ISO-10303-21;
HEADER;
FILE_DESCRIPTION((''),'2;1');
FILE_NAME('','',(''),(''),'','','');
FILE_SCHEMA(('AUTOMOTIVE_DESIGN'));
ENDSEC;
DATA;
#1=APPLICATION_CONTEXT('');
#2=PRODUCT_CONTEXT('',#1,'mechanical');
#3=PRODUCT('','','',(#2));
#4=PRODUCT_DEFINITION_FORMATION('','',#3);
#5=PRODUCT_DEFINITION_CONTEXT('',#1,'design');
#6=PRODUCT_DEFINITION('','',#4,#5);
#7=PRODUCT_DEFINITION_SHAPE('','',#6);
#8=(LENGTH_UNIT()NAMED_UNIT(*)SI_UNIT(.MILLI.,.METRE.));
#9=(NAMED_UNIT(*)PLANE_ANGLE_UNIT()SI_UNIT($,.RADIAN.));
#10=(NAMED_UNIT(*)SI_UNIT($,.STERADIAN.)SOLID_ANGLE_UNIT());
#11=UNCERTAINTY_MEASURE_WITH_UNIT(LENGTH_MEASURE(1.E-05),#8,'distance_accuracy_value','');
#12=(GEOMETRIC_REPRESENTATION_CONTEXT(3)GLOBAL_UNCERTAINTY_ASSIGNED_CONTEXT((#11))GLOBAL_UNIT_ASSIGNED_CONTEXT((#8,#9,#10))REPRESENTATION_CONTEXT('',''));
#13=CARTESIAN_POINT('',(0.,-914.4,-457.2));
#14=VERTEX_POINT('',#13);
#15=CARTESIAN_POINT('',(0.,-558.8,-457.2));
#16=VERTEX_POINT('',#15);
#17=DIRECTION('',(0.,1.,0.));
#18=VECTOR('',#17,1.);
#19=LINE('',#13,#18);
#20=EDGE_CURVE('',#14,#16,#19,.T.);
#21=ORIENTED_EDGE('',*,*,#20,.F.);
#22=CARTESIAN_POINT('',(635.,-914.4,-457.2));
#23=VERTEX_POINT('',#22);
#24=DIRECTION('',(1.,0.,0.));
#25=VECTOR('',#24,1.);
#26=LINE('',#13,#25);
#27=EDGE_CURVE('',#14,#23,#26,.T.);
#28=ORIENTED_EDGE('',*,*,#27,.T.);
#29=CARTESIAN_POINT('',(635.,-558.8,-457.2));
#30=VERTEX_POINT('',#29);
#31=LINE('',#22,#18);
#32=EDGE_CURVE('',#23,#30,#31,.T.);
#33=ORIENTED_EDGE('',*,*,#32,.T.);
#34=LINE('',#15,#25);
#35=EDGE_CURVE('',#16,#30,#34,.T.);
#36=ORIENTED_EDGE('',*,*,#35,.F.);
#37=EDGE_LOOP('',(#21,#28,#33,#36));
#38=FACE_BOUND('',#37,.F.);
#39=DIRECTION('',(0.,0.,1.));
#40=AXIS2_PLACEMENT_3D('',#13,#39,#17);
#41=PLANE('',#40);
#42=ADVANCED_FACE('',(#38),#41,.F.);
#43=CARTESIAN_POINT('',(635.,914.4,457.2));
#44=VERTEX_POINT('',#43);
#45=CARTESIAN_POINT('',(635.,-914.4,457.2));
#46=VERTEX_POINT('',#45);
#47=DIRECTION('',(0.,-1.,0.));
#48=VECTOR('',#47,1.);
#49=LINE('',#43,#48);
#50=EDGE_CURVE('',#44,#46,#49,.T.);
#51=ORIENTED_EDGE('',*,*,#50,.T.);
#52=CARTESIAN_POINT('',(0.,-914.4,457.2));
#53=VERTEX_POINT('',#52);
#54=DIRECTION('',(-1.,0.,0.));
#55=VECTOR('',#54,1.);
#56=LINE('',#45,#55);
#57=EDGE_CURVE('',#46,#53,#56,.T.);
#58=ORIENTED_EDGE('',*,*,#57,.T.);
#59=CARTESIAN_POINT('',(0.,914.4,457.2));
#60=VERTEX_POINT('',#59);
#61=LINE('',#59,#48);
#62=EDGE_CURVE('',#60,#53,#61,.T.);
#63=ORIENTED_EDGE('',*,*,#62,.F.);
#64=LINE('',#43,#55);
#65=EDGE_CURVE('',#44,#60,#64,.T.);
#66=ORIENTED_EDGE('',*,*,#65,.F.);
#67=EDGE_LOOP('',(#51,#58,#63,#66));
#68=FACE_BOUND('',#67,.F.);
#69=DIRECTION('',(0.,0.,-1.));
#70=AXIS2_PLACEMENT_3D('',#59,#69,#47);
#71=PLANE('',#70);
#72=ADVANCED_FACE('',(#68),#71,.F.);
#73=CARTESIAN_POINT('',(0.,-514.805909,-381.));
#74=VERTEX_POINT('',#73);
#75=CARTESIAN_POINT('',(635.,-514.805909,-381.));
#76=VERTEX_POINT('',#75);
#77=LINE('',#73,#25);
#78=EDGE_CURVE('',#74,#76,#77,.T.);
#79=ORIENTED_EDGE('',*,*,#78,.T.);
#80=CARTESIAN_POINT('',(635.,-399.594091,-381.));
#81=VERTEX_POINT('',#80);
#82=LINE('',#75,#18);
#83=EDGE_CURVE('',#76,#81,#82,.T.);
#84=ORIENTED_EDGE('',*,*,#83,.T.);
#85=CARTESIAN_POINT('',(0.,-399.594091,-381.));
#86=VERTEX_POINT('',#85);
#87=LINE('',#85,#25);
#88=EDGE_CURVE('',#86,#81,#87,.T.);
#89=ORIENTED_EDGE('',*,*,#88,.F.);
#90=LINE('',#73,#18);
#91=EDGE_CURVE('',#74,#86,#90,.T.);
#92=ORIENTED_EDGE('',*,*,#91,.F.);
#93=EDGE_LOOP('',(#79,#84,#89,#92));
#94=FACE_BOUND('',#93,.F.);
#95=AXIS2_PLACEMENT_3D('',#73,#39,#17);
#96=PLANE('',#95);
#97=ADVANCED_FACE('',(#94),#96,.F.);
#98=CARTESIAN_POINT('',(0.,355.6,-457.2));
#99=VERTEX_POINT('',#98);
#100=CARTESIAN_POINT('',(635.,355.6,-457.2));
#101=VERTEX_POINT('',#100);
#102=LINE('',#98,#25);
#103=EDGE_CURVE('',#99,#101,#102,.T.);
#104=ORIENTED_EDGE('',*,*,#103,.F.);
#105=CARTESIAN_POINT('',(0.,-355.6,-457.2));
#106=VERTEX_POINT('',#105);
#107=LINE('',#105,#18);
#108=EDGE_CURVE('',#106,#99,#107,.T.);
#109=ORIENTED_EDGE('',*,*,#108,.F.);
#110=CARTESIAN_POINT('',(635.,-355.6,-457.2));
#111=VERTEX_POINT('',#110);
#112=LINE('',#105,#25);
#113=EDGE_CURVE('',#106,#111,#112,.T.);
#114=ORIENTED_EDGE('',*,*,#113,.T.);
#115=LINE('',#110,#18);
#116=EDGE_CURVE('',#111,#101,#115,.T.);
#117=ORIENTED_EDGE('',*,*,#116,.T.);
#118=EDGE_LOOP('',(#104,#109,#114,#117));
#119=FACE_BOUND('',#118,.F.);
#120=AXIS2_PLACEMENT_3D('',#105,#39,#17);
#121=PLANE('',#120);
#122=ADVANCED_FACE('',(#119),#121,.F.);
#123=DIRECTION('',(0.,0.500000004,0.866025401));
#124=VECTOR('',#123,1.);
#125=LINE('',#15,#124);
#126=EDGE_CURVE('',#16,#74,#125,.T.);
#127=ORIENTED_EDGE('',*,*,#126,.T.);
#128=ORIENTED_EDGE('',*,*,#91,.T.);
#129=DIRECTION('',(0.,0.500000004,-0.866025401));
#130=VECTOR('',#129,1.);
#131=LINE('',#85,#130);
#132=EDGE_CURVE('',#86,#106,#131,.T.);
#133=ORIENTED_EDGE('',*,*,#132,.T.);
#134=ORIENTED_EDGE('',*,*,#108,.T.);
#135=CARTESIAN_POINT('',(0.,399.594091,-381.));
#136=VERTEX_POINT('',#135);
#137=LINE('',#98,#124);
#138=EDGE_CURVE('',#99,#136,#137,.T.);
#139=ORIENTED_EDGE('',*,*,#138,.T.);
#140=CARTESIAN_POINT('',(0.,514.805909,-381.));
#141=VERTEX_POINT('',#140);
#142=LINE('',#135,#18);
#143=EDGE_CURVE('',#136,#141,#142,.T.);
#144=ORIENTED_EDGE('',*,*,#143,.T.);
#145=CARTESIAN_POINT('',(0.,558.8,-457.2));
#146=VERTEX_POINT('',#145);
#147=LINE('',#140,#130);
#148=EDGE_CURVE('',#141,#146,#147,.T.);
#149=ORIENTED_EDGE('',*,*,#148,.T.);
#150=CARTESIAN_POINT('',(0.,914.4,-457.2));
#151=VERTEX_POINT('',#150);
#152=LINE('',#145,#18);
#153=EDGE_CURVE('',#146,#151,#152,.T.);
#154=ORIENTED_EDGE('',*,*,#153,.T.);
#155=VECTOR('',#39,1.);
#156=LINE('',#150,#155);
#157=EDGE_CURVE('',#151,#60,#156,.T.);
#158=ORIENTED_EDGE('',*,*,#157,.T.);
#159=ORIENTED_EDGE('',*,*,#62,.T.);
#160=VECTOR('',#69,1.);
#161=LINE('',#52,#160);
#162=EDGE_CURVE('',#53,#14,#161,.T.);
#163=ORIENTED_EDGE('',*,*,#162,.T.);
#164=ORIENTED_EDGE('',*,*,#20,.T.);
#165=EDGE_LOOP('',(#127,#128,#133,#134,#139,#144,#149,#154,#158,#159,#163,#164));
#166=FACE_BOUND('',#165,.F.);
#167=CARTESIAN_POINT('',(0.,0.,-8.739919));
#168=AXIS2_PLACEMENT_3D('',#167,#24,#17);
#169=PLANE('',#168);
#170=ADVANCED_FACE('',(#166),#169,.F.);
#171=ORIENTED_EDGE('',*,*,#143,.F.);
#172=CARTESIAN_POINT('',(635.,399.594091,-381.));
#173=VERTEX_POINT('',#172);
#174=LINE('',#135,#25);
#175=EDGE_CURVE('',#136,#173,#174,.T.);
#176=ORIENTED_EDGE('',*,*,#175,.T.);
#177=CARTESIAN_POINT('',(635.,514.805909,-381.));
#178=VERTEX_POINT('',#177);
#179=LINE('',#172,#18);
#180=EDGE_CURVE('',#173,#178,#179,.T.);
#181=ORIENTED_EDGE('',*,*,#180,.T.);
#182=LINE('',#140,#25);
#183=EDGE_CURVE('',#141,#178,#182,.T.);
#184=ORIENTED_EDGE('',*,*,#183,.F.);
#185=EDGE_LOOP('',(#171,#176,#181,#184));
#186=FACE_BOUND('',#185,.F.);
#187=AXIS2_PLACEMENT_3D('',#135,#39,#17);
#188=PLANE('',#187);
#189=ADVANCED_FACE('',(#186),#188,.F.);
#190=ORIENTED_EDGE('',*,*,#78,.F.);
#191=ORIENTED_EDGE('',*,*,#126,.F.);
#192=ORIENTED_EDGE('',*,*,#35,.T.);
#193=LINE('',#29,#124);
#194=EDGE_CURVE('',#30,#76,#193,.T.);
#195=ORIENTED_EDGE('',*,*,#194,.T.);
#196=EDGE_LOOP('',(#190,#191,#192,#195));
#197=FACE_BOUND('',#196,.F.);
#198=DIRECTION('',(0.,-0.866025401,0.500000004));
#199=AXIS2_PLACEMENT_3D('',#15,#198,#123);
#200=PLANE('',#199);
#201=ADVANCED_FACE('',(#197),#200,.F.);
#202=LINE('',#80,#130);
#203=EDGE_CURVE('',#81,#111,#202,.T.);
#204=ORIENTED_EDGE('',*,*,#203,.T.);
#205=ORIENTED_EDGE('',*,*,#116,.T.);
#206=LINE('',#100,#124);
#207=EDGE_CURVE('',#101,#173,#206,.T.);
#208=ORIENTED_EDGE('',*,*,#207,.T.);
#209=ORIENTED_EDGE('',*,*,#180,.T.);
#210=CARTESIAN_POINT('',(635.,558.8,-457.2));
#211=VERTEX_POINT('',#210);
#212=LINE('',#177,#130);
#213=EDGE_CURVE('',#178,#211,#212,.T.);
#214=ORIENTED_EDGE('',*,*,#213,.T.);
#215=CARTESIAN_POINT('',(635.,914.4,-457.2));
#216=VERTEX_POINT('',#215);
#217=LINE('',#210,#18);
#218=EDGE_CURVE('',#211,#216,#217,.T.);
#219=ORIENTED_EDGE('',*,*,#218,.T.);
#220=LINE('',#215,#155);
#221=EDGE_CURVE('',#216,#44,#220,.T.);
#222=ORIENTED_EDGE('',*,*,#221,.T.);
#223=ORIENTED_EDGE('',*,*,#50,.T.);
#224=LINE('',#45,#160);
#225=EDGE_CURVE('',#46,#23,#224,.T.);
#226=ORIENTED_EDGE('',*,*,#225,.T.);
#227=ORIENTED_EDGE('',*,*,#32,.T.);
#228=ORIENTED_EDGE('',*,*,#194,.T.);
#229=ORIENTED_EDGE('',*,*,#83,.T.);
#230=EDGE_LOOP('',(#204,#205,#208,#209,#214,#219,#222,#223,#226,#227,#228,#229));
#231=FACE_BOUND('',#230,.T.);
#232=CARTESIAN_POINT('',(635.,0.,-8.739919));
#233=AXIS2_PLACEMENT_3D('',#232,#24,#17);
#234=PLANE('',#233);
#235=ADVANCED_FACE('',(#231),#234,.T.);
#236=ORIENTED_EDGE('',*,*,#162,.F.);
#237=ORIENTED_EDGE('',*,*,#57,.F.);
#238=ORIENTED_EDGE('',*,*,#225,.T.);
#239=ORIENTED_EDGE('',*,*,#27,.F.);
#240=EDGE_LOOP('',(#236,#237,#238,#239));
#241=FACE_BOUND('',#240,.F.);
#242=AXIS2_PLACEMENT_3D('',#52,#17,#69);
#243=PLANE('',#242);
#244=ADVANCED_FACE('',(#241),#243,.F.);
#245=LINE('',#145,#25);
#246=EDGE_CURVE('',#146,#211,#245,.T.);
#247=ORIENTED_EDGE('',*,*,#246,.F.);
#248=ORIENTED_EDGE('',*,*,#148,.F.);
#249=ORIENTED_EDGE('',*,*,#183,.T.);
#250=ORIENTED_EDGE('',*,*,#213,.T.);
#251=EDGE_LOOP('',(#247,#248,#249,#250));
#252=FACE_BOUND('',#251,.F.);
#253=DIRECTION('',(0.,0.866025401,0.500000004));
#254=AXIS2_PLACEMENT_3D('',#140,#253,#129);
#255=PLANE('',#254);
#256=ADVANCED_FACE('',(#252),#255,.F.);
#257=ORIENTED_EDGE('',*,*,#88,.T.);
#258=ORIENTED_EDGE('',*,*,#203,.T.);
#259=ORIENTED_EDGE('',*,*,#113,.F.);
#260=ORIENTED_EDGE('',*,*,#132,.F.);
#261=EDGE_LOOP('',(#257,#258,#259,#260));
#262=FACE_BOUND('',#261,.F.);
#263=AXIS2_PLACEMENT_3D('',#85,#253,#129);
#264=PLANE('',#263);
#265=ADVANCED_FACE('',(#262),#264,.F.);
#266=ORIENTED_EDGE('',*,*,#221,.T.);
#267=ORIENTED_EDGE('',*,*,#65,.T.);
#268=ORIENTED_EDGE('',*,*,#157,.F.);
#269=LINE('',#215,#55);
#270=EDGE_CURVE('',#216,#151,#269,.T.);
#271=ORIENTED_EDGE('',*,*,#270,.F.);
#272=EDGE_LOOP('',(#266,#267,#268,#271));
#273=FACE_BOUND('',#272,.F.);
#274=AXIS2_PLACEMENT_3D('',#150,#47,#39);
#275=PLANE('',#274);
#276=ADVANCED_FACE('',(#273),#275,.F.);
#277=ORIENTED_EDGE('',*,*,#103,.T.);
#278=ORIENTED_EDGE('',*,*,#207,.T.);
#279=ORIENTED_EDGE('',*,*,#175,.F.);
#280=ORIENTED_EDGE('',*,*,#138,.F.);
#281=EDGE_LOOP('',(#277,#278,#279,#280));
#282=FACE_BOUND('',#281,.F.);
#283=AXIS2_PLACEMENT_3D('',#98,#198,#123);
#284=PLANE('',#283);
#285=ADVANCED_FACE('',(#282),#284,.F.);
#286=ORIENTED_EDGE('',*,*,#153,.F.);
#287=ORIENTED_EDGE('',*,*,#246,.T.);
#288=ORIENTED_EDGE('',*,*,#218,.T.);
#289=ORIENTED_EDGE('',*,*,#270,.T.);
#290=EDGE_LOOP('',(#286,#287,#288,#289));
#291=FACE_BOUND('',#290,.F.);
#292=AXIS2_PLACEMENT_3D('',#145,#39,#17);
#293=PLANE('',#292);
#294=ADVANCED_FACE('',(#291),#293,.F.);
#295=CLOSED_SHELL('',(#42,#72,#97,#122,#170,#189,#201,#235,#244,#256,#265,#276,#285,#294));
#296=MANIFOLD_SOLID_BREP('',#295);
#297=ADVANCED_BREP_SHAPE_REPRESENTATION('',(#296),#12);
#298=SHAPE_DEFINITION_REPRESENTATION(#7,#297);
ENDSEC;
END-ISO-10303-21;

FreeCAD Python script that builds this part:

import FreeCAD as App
import Part
import Sketcher
Q = App.Units.Quantity


def faces_at(feature, points):
    """Names of the faces that lie closest to the given points."""
    faces = feature.Shape.Faces
    near = lambda p: min(range(len(faces)), key=lambda i: faces[i].distToShape(Part.Vertex(*p))[0])
    return sorted({f"Face{near(p) + 1}" for p in points})

doc = App.newDocument("Part")
body = doc.addObject("PartDesign::Body", "Body")

sketch1 = doc.addObject("Sketcher::SketchObject", "Sketch")
body.addObject(sketch1)
sketch1.AttachmentSupport = (doc.YZ_Plane, [""])
sketch1.MapMode = "FlatFace"
sketch1.addGeometry(Part.LineSegment(App.Vector(914, -457, 0), App.Vector(914, 457, 0)), False)
sketch1.addGeometry(Part.LineSegment(App.Vector(914, 457, 0), App.Vector(-914, 457, 0)), False)
sketch1.addGeometry(Part.LineSegment(App.Vector(-914, 457, 0), App.Vector(-914, -457, 0)), False)
sketch1.addGeometry(Part.LineSegment(App.Vector(-914, -457, 0), App.Vector(-559, -457, 0)), False)
sketch1.addGeometry(Part.LineSegment(App.Vector(-559, -457, 0), App.Vector(-515, -381, 0)), False)
sketch1.addGeometry(Part.LineSegment(App.Vector(-515, -381, 0), App.Vector(-400, -381, 0)), False)
sketch1.addGeometry(Part.LineSegment(App.Vector(-400, -381, 0), App.Vector(-356, -457, 0)), False)
sketch1.addGeometry(Part.LineSegment(App.Vector(-356, -457, 0), App.Vector(356, -457, 0)), False)
sketch1.addGeometry(Part.LineSegment(App.Vector(356, -457, 0), App.Vector(400, -381, 0)), False)
sketch1.addGeometry(Part.LineSegment(App.Vector(400, -381, 0), App.Vector(515, -381, 0)), False)
sketch1.addGeometry(Part.LineSegment(App.Vector(515, -381, 0), App.Vector(559, -457, 0)), False)
sketch1.addGeometry(Part.LineSegment(App.Vector(559, -457, 0), App.Vector(914, -457, 0)), False)
sketch1.addConstraint(Sketcher.Constraint("Coincident", 0, 2, 1, 1))
sketch1.addConstraint(Sketcher.Constraint("Coincident", 1, 2, 2, 1))
sketch1.addConstraint(Sketcher.Constraint("Coincident", 2, 2, 3, 1))
sketch1.addConstraint(Sketcher.Constraint("Coincident", 3, 2, 4, 1))
sketch1.addConstraint(Sketcher.Constraint("Coincident", 4, 2, 5, 1))
sketch1.addConstraint(Sketcher.Constraint("Coincident", 5, 2, 6, 1))
sketch1.addConstraint(Sketcher.Constraint("Coincident", 6, 2, 7, 1))
sketch1.addConstraint(Sketcher.Constraint("Coincident", 7, 2, 8, 1))
sketch1.addConstraint(Sketcher.Constraint("Coincident", 8, 2, 9, 1))
sketch1.addConstraint(Sketcher.Constraint("Coincident", 9, 2, 10, 1))
sketch1.addConstraint(Sketcher.Constraint("Coincident", 10, 2, 11, 1))
sketch1.addConstraint(Sketcher.Constraint("Coincident", 11, 2, 0, 1))
sketch1.addConstraint(Sketcher.Constraint("Vertical", 0))
sketch1.addConstraint(Sketcher.Constraint("Horizontal", 1))
sketch1.addConstraint(Sketcher.Constraint("Vertical", 2))
sketch1.addConstraint(Sketcher.Constraint("Horizontal", 3))
sketch1.addConstraint(Sketcher.Constraint("Horizontal", 5))
sketch1.addConstraint(Sketcher.Constraint("Horizontal", 7))
sketch1.addConstraint(Sketcher.Constraint("Horizontal", 9))
sketch1.addConstraint(Sketcher.Constraint("Horizontal", 11))
sketch1.addConstraint(Sketcher.Constraint("Symmetric", 0, 2, 2, 2, -1, 1))
sketch1.addConstraint(Sketcher.Constraint("Symmetric", 5, 2, 8, 2, -2))
sketch1.addConstraint(Sketcher.Constraint("Symmetric", 3, 2, 10, 2, -2))
sketch1.addConstraint(Sketcher.Constraint("Parallel", 4, 8))
sketch1.addConstraint(Sketcher.Constraint("Parallel", 6, 10))
sketch1.addConstraint(Sketcher.Constraint("Horizontal", 3, 2, 6, 2))
sketch1.addConstraint(Sketcher.Constraint("Equal", 5, 9))
sketch1.addConstraint(Sketcher.Constraint("DistanceX", 1, 2, 1, 1, Q("72 in")))
sketch1.addConstraint(Sketcher.Constraint("DistanceX", 3, 1, 3, 2, Q("14 in")))
sketch1.addConstraint(Sketcher.Constraint("DistanceX", 7, 1, 7, 2, Q("28 in")))
sketch1.addConstraint(Sketcher.Constraint("DistanceY", 0, 1, 0, 2, Q("36 in")))
sketch1.addConstraint(Sketcher.Constraint("DistanceY", 4, 2, -1, 1, Q("15 in")))
sketch1.addConstraint(Sketcher.Constraint("Angle", 4, Q("60 deg")))
pad1 = doc.addObject("PartDesign::Pad", "Pad")
body.addObject(pad1)
pad1.Profile = sketch1
pad1.Length = Q("24 in")
doc.recompute()

thickness = doc.addObject("PartDesign::Thickness", "Thickness")
body.addObject(thickness)
thickness.Base = (pad1, faces_at(pad1, [(304.8, 0, 457.2)]))
thickness.Value = Q("3 in")
thickness.Reversed = True
thickness.Join = "Arc"

sketch2 = doc.addObject("Sketcher::SketchObject", "Sketch001")
body.addObject(sketch2)
sketch2.AttachmentSupport = (doc.YZ_Plane, [""])
sketch2.MapMode = "FlatFace"
sketch2.addGeometry(Part.LineSegment(App.Vector(914, -457, 0), App.Vector(914, 457, 0)), False)
sketch2.addGeometry(Part.LineSegment(App.Vector(914, 457, 0), App.Vector(-914, 457, 0)), False)
sketch2.addGeometry(Part.LineSegment(App.Vector(-914, 457, 0), App.Vector(-914, -457, 0)), False)
sketch2.addGeometry(Part.LineSegment(App.Vector(-914, -457, 0), App.Vector(-559, -457, 0)), False)
sketch2.addGeometry(Part.LineSegment(App.Vector(-559, -457, 0), App.Vector(-515, -381, 0)), False)
sketch2.addGeometry(Part.LineSegment(App.Vector(-515, -381, 0), App.Vector(-400, -381, 0)), False)
sketch2.addGeometry(Part.LineSegment(App.Vector(-400, -381, 0), App.Vector(-356, -457, 0)), False)
sketch2.addGeometry(Part.LineSegment(App.Vector(-356, -457, 0), App.Vector(356, -457, 0)), False)
sketch2.addGeometry(Part.LineSegment(App.Vector(356, -457, 0), App.Vector(400, -381, 0)), False)
sketch2.addGeometry(Part.LineSegment(App.Vector(400, -381, 0), App.Vector(515, -381, 0)), False)
sketch2.addGeometry(Part.LineSegment(App.Vector(515, -381, 0), App.Vector(559, -457, 0)), False)
sketch2.addGeometry(Part.LineSegment(App.Vector(559, -457, 0), App.Vector(914, -457, 0)), False)
sketch2.addConstraint(Sketcher.Constraint("Coincident", 0, 2, 1, 1))
sketch2.addConstraint(Sketcher.Constraint("Coincident", 1, 2, 2, 1))
sketch2.addConstraint(Sketcher.Constraint("Coincident", 2, 2, 3, 1))
sketch2.addConstraint(Sketcher.Constraint("Coincident", 3, 2, 4, 1))
sketch2.addConstraint(Sketcher.Constraint("Coincident", 4, 2, 5, 1))
sketch2.addConstraint(Sketcher.Constraint("Coincident", 5, 2, 6, 1))
sketch2.addConstraint(Sketcher.Constraint("Coincident", 6, 2, 7, 1))
sketch2.addConstraint(Sketcher.Constraint("Coincident", 7, 2, 8, 1))
sketch2.addConstraint(Sketcher.Constraint("Coincident", 8, 2, 9, 1))
sketch2.addConstraint(Sketcher.Constraint("Coincident", 9, 2, 10, 1))
sketch2.addConstraint(Sketcher.Constraint("Coincident", 10, 2, 11, 1))
sketch2.addConstraint(Sketcher.Constraint("Coincident", 11, 2, 0, 1))
sketch2.addConstraint(Sketcher.Constraint("Vertical", 0))
sketch2.addConstraint(Sketcher.Constraint("Horizontal", 1))
sketch2.addConstraint(Sketcher.Constraint("Vertical", 2))
sketch2.addConstraint(Sketcher.Constraint("Horizontal", 3))
sketch2.addConstraint(Sketcher.Constraint("Horizontal", 5))
sketch2.addConstraint(Sketcher.Constraint("Horizontal", 7))
sketch2.addConstraint(Sketcher.Constraint("Horizontal", 9))
sketch2.addConstraint(Sketcher.Constraint("Horizontal", 11))
sketch2.addConstraint(Sketcher.Constraint("Symmetric", 0, 2, 2, 2, -1, 1))
sketch2.addConstraint(Sketcher.Constraint("Symmetric", 5, 2, 8, 2, -2))
sketch2.addConstraint(Sketcher.Constraint("Symmetric", 3, 2, 10, 2, -2))
sketch2.addConstraint(Sketcher.Constraint("Parallel", 4, 8))
sketch2.addConstraint(Sketcher.Constraint("Parallel", 6, 10))
sketch2.addConstraint(Sketcher.Constraint("Horizontal", 3, 2, 6, 2))
sketch2.addConstraint(Sketcher.Constraint("Equal", 5, 9))
sketch2.addConstraint(Sketcher.Constraint("DistanceX", 1, 2, 1, 1, Q("72 in")))
sketch2.addConstraint(Sketcher.Constraint("DistanceX", 3, 1, 3, 2, Q("14 in")))
sketch2.addConstraint(Sketcher.Constraint("DistanceX", 7, 1, 7, 2, Q("28 in")))
sketch2.addConstraint(Sketcher.Constraint("DistanceY", 0, 1, 0, 2, Q("36 in")))
sketch2.addConstraint(Sketcher.Constraint("DistanceY", 4, 2, -1, 1, Q("15 in")))
sketch2.addConstraint(Sketcher.Constraint("Angle", 4, Q("60 deg")))
pad2 = doc.addObject("PartDesign::Pad", "Pad001")
body.addObject(pad2)
pad2.Profile = sketch2
pad2.Length = Q("25 in")

doc.recompute()
